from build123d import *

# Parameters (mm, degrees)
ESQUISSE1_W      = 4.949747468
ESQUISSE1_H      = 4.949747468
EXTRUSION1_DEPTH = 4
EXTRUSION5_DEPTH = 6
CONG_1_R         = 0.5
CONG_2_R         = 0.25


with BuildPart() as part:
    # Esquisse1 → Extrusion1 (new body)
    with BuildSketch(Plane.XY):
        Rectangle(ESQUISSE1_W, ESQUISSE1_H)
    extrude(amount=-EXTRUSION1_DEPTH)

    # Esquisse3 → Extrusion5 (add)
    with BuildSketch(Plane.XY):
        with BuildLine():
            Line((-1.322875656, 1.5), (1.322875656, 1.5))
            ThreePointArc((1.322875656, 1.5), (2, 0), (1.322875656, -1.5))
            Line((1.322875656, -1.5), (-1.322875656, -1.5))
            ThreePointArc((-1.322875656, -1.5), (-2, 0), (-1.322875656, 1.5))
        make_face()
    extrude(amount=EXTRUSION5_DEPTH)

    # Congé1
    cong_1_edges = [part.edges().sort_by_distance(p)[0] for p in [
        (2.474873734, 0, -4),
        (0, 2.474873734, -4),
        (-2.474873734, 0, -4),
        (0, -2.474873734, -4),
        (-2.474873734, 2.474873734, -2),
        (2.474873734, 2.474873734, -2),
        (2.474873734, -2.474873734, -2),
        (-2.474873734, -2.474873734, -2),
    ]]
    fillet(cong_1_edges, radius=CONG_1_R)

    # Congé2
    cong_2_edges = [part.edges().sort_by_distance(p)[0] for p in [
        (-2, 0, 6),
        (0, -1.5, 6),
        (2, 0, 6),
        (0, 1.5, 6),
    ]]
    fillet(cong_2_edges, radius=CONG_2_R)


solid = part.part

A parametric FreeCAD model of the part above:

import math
import FreeCAD as App
import Part
import Sketcher
from FreeCAD import Vector


def edges_at(feature, points):
    """Names of the edges that pass closest to the given points."""
    edges = feature.Shape.Edges
    near = lambda p: min(range(len(edges)), key=lambda i: edges[i].distToShape(Part.Vertex(*p))[0])
    return sorted({f"Edge{near(p) + 1}" for p in points})


def add_polygon(sketch, points):
    """Adds a closed chain of lines whose ends are joined by coincident constraints."""
    first, n = sketch.GeometryCount, len(points)
    for a, b in zip(points, points[1:] + points[:1]):
        sketch.addGeometry(Part.LineSegment(App.Vector(*a, 0), App.Vector(*b, 0)), False)
    for i in range(n):
        sketch.addConstraint(Sketcher.Constraint("Coincident", first + i, 2, first + (i + 1) % n, 1))

doc = App.newDocument("Part")
body = doc.addObject("PartDesign::Body", "Body")

# Sketch on XY plane
sketch1 = body.newObject("Sketcher::SketchObject", "Sketch")
sketch1.AttachmentSupport = (doc.getObject("XY_Plane"), [""])
sketch1.MapMode = "FlatFace"
add_polygon(sketch1, [(-2.5, 2.5), (-2.5, -2.5), (2.5, -2.5), (2.5, 2.5)])  # lines 0-3
sketch1.addConstraint([
    Sketcher.Constraint("Vertical", 0),
    Sketcher.Constraint("Horizontal", 1),
    Sketcher.Constraint("Vertical", 2),
    Sketcher.Constraint("Horizontal", 3),
    Sketcher.Constraint("Symmetric", 0, 2, 2, 2, -1, 1),
    Sketcher.Constraint("Equal", 3, 0),
    Sketcher.Constraint("DistanceX", 1, 1, 1, 2, 4.949747),
])
pad1 = body.newObject("PartDesign::Pad", "Pad")
pad1.Profile = sketch1
pad1.Length = 4
pad1.Reversed = True

# Sketch on XY plane
sketch2 = body.newObject("Sketcher::SketchObject", "Sketch001")
sketch2.AttachmentSupport = (doc.getObject("XY_Plane"), [""])
sketch2.MapMode = "FlatFace"
sketch2.addGeometry([
    Part.LineSegment(Vector(1.3, 1.5, 0), Vector(-1.3, 1.5, 0)),
    Part.ArcOfCircle(Part.Circle(Vector(0, 0, 0), Vector(0, 0, 1), 2), math.radians(131), math.radians(229)),
    Part.LineSegment(Vector(-1.3, -1.5, 0), Vector(1.3, -1.5, 0)),
    Part.ArcOfCircle(Part.Circle(Vector(0, 0, 0), Vector(0, 0, 1), 2), math.radians(-49), math.radians(49)),
], False)
sketch2.addConstraint([
    Sketcher.Constraint("Coincident", 0, 2, 1, 1),
    Sketcher.Constraint("Coincident", 1, 2, 2, 1),
    Sketcher.Constraint("Coincident", 2, 2, 3, 1),
    Sketcher.Constraint("Coincident", 3, 2, 0, 1),
    Sketcher.Constraint("Horizontal", 0),
    Sketcher.Constraint("Horizontal", 2),
    Sketcher.Constraint("Coincident", 1, 3, -1, 1),
    Sketcher.Constraint("Coincident", 3, 3, -1, 1),
    Sketcher.Constraint("Equal", 1, 3),
    Sketcher.Constraint("Vertical", 0, 2, 1, 2),
    Sketcher.Constraint("Radius", 1, 2.0),
    Sketcher.Constraint("DistanceY", 1, 2, 0, 2, 3.0),
])
pad2 = body.newObject("PartDesign::Pad", "Pad001")
pad2.Profile = sketch2
pad2.Length = 6
doc.recompute()

fillet = body.newObject("PartDesign::Fillet", "Fillet")
fillet.Base = (pad2, edges_at(pad2, [
    (2.475, 0, -4),
    (0, 2.475, -4),
    (-2.475, 0, -4),
    (0, -2.475, -4),
    (-2.475, 2.475, -2),
    (2.475, 2.475, -2),
    (2.475, -2.475, -2),
    (-2.475, -2.475, -2),
]))
fillet.Radius = 0.5
doc.recompute()

fillet2 = body.newObject("PartDesign::Fillet", "Fillet001")
fillet2.Base = (fillet, edges_at(fillet, [
    (-2, 0, 6),
    (0, -1.5, 6),
    (2, 0, 6),
    (0, 1.5, 6),
]))
fillet2.Radius = 0.25

doc.recompute()
